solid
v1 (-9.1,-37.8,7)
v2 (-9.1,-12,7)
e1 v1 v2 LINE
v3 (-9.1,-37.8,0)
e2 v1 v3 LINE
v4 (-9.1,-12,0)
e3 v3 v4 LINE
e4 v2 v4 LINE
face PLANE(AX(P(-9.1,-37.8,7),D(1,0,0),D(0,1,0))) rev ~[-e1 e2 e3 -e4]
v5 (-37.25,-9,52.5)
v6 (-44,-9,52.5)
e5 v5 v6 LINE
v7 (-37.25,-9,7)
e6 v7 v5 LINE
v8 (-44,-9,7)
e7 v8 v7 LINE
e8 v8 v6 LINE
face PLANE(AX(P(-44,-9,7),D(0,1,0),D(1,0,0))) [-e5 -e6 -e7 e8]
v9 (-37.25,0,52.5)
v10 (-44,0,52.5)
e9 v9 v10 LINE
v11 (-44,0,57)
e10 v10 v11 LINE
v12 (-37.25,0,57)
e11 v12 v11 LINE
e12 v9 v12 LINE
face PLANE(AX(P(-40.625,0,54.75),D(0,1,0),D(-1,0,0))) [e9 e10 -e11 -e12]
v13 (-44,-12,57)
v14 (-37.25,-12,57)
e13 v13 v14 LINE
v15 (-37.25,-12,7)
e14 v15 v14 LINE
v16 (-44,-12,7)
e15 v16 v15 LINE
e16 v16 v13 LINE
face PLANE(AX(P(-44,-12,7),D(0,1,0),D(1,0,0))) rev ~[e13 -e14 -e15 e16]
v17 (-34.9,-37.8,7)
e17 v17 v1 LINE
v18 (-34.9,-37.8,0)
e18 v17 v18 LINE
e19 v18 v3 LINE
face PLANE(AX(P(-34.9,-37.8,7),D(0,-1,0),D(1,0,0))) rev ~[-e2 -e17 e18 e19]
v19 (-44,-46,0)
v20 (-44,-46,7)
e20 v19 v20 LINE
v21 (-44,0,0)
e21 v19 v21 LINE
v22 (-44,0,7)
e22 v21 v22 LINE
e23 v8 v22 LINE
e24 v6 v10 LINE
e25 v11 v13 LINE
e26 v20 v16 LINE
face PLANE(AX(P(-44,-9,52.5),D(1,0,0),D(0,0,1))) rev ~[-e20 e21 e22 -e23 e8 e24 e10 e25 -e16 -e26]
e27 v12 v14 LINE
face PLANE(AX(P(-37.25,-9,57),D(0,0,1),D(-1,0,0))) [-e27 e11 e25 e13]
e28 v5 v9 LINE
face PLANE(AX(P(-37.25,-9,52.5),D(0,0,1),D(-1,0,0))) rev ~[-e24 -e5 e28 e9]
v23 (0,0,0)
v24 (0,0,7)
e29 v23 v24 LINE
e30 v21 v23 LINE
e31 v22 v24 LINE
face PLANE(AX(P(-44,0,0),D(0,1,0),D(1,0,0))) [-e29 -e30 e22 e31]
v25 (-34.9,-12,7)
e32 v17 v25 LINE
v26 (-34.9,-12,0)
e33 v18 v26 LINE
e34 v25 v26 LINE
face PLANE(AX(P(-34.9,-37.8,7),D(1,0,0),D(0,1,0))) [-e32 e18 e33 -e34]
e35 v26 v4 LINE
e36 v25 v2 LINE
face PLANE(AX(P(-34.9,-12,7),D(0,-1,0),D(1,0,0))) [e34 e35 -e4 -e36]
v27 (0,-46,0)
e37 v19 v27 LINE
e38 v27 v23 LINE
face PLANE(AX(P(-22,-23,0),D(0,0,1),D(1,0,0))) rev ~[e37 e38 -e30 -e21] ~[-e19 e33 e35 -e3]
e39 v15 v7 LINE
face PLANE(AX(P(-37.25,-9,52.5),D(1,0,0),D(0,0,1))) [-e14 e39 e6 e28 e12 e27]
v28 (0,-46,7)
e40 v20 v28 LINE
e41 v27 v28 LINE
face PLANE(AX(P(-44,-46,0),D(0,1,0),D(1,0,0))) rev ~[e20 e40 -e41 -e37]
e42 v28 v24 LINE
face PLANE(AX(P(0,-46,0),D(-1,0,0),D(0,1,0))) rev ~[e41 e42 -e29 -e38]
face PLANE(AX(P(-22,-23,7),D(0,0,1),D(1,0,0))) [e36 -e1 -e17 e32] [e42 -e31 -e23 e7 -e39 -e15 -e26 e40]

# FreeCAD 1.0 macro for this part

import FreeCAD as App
import Part
import Sketcher

V = App.Vector


def add_polygon(sketch, points):
    """Adds a closed chain of lines whose ends are joined by coincident constraints."""
    first, n = sketch.GeometryCount, len(points)
    for a, b in zip(points, points[1:] + points[:1]):
        sketch.addGeometry(Part.LineSegment(App.Vector(*a, 0), App.Vector(*b, 0)), False)
    for i in range(n):
        sketch.addConstraint(Sketcher.Constraint("Coincident", first + i, 2, first + (i + 1) % n, 1))

doc = App.newDocument("Part")
body = doc.addObject("PartDesign::Body", "Body")

sketch1 = body.newObject("Sketcher::SketchObject", "Sketch")
sketch1.AttachmentSupport = (doc.getObject("XY_Plane"), [""])
sketch1.MapMode = "FlatFace"
add_polygon(sketch1, [(-44, 0), (-44, -46), (0, -46), (0, 0)])
sketch1.addConstraint(Sketcher.Constraint("Vertical", 0))
sketch1.addConstraint(Sketcher.Constraint("Horizontal", 1))
sketch1.addConstraint(Sketcher.Constraint("Vertical", 2))
sketch1.addConstraint(Sketcher.Constraint("Horizontal", 3))
sketch1.addConstraint(Sketcher.Constraint("Coincident", 2, 2, -1, 1))
sketch1.addConstraint(Sketcher.Constraint("DistanceX", 1, 1, 1, 2, 44.0))
sketch1.addConstraint(Sketcher.Constraint("DistanceY", 0, 2, 0, 1, 46.0))
pad1 = body.newObject("PartDesign::Pad", "Pad")
pad1.Profile = sketch1
pad1.Length = 7

sketch2 = body.newObject("Sketcher::SketchObject", "Sketch001")
sketch2.AttachmentSupport = (doc.getObject("XY_Plane"), [""])
sketch2.MapMode = "FlatFace"
sketch2.AttachmentOffset = App.Placement(V(0, 0, 7), App.Rotation())
add_polygon(sketch2, [(-35, -12), (-35, -38), (-9, -38), (-9, -12)])
sketch2.addConstraint(Sketcher.Constraint("Vertical", 0))
sketch2.addConstraint(Sketcher.Constraint("Horizontal", 1))
sketch2.addConstraint(Sketcher.Constraint("Vertical", 2))
sketch2.addConstraint(Sketcher.Constraint("Horizontal", 3))
sketch2.addConstraint(Sketcher.Constraint("Equal", 3, 0))
sketch2.addConstraint(Sketcher.Constraint("DistanceX", 1, 1, 1, 2, 25.8))
sketch2.addConstraint(Sketcher.Constraint("DistanceY", 2, 2, -1, 1, 12.0))
sketch2.addConstraint(Sketcher.Constraint("DistanceX", 0, 2, -1, 1, 34.9))
pocket1 = body.newObject("PartDesign::Pocket", "Pocket")
pocket1.Profile = sketch2
pocket1.Length = 8

sketch3 = body.newObject("Sketcher::SketchObject", "Sketch002")
sketch3.AttachmentSupport = (doc.getObject("XY_Plane"), [""])
sketch3.MapMode = "FlatFace"
sketch3.AttachmentOffset = App.Placement(V(0, 0, 7), App.Rotation())
add_polygon(sketch3, [(-44, -9), (-44, -12), (-37.2, -12), (-37.2, -9)])
sketch3.addConstraint(Sketcher.Constraint("Vertical", 0))
sketch3.addConstraint(Sketcher.Constraint("Horizontal", 1))
sketch3.addConstraint(Sketcher.Constraint("Vertical", 2))
sketch3.addConstraint(Sketcher.Constraint("Horizontal", 3))
sketch3.addConstraint(Sketcher.Constraint("DistanceY", 0, 2, 0, 1, 3.0))
sketch3.addConstraint(Sketcher.Constraint("DistanceX", 0, 2, -1, 1, 44.0))
sketch3.addConstraint(Sketcher.Constraint("DistanceY", 0, 2, -1, 1, 12.0))
sketch3.addConstraint(Sketcher.Constraint("DistanceX", 1, 1, 1, 2, 6.75))
pad2 = body.newObject("PartDesign::Pad", "Pad001")
pad2.Profile = sketch3
pad2.Length = 50

sketch4 = body.newObject("Sketcher::SketchObject", "Sketch003")
sketch4.AttachmentSupport = (doc.getObject("XZ_Plane"), [""])
sketch4.MapMode = "FlatFace"
sketch4.AttachmentOffset = App.Placement(V(0, 0, 9), App.Rotation())
add_polygon(sketch4, [(-37.2, 57), (-37.2, 52.5), (-44, 52.5), (-44, 57)])
sketch4.addConstraint(Sketcher.Constraint("Vertical", 0))
sketch4.addConstraint(Sketcher.Constraint("Horizontal", 1))
sketch4.addConstraint(Sketcher.Constraint("Vertical", 2))
sketch4.addConstraint(Sketcher.Constraint("Horizontal", 3))
sketch4.addConstraint(Sketcher.Constraint("DistanceY", 0, 2, 0, 1, 4.5))
sketch4.addConstraint(Sketcher.Constraint("DistanceX", 1, 2, -1, 1, 44.0))
sketch4.addConstraint(Sketcher.Constraint("DistanceY", -1, 1, 2, 2, 57.0))
sketch4.addConstraint(Sketcher.Constraint("DistanceX", 1, 2, 1, 1, 6.75))
pad3 = body.newObject("PartDesign::Pad", "Pad002")
pad3.Profile = sketch4
pad3.Length = 9
pad3.Reversed = True

doc.recompute()
